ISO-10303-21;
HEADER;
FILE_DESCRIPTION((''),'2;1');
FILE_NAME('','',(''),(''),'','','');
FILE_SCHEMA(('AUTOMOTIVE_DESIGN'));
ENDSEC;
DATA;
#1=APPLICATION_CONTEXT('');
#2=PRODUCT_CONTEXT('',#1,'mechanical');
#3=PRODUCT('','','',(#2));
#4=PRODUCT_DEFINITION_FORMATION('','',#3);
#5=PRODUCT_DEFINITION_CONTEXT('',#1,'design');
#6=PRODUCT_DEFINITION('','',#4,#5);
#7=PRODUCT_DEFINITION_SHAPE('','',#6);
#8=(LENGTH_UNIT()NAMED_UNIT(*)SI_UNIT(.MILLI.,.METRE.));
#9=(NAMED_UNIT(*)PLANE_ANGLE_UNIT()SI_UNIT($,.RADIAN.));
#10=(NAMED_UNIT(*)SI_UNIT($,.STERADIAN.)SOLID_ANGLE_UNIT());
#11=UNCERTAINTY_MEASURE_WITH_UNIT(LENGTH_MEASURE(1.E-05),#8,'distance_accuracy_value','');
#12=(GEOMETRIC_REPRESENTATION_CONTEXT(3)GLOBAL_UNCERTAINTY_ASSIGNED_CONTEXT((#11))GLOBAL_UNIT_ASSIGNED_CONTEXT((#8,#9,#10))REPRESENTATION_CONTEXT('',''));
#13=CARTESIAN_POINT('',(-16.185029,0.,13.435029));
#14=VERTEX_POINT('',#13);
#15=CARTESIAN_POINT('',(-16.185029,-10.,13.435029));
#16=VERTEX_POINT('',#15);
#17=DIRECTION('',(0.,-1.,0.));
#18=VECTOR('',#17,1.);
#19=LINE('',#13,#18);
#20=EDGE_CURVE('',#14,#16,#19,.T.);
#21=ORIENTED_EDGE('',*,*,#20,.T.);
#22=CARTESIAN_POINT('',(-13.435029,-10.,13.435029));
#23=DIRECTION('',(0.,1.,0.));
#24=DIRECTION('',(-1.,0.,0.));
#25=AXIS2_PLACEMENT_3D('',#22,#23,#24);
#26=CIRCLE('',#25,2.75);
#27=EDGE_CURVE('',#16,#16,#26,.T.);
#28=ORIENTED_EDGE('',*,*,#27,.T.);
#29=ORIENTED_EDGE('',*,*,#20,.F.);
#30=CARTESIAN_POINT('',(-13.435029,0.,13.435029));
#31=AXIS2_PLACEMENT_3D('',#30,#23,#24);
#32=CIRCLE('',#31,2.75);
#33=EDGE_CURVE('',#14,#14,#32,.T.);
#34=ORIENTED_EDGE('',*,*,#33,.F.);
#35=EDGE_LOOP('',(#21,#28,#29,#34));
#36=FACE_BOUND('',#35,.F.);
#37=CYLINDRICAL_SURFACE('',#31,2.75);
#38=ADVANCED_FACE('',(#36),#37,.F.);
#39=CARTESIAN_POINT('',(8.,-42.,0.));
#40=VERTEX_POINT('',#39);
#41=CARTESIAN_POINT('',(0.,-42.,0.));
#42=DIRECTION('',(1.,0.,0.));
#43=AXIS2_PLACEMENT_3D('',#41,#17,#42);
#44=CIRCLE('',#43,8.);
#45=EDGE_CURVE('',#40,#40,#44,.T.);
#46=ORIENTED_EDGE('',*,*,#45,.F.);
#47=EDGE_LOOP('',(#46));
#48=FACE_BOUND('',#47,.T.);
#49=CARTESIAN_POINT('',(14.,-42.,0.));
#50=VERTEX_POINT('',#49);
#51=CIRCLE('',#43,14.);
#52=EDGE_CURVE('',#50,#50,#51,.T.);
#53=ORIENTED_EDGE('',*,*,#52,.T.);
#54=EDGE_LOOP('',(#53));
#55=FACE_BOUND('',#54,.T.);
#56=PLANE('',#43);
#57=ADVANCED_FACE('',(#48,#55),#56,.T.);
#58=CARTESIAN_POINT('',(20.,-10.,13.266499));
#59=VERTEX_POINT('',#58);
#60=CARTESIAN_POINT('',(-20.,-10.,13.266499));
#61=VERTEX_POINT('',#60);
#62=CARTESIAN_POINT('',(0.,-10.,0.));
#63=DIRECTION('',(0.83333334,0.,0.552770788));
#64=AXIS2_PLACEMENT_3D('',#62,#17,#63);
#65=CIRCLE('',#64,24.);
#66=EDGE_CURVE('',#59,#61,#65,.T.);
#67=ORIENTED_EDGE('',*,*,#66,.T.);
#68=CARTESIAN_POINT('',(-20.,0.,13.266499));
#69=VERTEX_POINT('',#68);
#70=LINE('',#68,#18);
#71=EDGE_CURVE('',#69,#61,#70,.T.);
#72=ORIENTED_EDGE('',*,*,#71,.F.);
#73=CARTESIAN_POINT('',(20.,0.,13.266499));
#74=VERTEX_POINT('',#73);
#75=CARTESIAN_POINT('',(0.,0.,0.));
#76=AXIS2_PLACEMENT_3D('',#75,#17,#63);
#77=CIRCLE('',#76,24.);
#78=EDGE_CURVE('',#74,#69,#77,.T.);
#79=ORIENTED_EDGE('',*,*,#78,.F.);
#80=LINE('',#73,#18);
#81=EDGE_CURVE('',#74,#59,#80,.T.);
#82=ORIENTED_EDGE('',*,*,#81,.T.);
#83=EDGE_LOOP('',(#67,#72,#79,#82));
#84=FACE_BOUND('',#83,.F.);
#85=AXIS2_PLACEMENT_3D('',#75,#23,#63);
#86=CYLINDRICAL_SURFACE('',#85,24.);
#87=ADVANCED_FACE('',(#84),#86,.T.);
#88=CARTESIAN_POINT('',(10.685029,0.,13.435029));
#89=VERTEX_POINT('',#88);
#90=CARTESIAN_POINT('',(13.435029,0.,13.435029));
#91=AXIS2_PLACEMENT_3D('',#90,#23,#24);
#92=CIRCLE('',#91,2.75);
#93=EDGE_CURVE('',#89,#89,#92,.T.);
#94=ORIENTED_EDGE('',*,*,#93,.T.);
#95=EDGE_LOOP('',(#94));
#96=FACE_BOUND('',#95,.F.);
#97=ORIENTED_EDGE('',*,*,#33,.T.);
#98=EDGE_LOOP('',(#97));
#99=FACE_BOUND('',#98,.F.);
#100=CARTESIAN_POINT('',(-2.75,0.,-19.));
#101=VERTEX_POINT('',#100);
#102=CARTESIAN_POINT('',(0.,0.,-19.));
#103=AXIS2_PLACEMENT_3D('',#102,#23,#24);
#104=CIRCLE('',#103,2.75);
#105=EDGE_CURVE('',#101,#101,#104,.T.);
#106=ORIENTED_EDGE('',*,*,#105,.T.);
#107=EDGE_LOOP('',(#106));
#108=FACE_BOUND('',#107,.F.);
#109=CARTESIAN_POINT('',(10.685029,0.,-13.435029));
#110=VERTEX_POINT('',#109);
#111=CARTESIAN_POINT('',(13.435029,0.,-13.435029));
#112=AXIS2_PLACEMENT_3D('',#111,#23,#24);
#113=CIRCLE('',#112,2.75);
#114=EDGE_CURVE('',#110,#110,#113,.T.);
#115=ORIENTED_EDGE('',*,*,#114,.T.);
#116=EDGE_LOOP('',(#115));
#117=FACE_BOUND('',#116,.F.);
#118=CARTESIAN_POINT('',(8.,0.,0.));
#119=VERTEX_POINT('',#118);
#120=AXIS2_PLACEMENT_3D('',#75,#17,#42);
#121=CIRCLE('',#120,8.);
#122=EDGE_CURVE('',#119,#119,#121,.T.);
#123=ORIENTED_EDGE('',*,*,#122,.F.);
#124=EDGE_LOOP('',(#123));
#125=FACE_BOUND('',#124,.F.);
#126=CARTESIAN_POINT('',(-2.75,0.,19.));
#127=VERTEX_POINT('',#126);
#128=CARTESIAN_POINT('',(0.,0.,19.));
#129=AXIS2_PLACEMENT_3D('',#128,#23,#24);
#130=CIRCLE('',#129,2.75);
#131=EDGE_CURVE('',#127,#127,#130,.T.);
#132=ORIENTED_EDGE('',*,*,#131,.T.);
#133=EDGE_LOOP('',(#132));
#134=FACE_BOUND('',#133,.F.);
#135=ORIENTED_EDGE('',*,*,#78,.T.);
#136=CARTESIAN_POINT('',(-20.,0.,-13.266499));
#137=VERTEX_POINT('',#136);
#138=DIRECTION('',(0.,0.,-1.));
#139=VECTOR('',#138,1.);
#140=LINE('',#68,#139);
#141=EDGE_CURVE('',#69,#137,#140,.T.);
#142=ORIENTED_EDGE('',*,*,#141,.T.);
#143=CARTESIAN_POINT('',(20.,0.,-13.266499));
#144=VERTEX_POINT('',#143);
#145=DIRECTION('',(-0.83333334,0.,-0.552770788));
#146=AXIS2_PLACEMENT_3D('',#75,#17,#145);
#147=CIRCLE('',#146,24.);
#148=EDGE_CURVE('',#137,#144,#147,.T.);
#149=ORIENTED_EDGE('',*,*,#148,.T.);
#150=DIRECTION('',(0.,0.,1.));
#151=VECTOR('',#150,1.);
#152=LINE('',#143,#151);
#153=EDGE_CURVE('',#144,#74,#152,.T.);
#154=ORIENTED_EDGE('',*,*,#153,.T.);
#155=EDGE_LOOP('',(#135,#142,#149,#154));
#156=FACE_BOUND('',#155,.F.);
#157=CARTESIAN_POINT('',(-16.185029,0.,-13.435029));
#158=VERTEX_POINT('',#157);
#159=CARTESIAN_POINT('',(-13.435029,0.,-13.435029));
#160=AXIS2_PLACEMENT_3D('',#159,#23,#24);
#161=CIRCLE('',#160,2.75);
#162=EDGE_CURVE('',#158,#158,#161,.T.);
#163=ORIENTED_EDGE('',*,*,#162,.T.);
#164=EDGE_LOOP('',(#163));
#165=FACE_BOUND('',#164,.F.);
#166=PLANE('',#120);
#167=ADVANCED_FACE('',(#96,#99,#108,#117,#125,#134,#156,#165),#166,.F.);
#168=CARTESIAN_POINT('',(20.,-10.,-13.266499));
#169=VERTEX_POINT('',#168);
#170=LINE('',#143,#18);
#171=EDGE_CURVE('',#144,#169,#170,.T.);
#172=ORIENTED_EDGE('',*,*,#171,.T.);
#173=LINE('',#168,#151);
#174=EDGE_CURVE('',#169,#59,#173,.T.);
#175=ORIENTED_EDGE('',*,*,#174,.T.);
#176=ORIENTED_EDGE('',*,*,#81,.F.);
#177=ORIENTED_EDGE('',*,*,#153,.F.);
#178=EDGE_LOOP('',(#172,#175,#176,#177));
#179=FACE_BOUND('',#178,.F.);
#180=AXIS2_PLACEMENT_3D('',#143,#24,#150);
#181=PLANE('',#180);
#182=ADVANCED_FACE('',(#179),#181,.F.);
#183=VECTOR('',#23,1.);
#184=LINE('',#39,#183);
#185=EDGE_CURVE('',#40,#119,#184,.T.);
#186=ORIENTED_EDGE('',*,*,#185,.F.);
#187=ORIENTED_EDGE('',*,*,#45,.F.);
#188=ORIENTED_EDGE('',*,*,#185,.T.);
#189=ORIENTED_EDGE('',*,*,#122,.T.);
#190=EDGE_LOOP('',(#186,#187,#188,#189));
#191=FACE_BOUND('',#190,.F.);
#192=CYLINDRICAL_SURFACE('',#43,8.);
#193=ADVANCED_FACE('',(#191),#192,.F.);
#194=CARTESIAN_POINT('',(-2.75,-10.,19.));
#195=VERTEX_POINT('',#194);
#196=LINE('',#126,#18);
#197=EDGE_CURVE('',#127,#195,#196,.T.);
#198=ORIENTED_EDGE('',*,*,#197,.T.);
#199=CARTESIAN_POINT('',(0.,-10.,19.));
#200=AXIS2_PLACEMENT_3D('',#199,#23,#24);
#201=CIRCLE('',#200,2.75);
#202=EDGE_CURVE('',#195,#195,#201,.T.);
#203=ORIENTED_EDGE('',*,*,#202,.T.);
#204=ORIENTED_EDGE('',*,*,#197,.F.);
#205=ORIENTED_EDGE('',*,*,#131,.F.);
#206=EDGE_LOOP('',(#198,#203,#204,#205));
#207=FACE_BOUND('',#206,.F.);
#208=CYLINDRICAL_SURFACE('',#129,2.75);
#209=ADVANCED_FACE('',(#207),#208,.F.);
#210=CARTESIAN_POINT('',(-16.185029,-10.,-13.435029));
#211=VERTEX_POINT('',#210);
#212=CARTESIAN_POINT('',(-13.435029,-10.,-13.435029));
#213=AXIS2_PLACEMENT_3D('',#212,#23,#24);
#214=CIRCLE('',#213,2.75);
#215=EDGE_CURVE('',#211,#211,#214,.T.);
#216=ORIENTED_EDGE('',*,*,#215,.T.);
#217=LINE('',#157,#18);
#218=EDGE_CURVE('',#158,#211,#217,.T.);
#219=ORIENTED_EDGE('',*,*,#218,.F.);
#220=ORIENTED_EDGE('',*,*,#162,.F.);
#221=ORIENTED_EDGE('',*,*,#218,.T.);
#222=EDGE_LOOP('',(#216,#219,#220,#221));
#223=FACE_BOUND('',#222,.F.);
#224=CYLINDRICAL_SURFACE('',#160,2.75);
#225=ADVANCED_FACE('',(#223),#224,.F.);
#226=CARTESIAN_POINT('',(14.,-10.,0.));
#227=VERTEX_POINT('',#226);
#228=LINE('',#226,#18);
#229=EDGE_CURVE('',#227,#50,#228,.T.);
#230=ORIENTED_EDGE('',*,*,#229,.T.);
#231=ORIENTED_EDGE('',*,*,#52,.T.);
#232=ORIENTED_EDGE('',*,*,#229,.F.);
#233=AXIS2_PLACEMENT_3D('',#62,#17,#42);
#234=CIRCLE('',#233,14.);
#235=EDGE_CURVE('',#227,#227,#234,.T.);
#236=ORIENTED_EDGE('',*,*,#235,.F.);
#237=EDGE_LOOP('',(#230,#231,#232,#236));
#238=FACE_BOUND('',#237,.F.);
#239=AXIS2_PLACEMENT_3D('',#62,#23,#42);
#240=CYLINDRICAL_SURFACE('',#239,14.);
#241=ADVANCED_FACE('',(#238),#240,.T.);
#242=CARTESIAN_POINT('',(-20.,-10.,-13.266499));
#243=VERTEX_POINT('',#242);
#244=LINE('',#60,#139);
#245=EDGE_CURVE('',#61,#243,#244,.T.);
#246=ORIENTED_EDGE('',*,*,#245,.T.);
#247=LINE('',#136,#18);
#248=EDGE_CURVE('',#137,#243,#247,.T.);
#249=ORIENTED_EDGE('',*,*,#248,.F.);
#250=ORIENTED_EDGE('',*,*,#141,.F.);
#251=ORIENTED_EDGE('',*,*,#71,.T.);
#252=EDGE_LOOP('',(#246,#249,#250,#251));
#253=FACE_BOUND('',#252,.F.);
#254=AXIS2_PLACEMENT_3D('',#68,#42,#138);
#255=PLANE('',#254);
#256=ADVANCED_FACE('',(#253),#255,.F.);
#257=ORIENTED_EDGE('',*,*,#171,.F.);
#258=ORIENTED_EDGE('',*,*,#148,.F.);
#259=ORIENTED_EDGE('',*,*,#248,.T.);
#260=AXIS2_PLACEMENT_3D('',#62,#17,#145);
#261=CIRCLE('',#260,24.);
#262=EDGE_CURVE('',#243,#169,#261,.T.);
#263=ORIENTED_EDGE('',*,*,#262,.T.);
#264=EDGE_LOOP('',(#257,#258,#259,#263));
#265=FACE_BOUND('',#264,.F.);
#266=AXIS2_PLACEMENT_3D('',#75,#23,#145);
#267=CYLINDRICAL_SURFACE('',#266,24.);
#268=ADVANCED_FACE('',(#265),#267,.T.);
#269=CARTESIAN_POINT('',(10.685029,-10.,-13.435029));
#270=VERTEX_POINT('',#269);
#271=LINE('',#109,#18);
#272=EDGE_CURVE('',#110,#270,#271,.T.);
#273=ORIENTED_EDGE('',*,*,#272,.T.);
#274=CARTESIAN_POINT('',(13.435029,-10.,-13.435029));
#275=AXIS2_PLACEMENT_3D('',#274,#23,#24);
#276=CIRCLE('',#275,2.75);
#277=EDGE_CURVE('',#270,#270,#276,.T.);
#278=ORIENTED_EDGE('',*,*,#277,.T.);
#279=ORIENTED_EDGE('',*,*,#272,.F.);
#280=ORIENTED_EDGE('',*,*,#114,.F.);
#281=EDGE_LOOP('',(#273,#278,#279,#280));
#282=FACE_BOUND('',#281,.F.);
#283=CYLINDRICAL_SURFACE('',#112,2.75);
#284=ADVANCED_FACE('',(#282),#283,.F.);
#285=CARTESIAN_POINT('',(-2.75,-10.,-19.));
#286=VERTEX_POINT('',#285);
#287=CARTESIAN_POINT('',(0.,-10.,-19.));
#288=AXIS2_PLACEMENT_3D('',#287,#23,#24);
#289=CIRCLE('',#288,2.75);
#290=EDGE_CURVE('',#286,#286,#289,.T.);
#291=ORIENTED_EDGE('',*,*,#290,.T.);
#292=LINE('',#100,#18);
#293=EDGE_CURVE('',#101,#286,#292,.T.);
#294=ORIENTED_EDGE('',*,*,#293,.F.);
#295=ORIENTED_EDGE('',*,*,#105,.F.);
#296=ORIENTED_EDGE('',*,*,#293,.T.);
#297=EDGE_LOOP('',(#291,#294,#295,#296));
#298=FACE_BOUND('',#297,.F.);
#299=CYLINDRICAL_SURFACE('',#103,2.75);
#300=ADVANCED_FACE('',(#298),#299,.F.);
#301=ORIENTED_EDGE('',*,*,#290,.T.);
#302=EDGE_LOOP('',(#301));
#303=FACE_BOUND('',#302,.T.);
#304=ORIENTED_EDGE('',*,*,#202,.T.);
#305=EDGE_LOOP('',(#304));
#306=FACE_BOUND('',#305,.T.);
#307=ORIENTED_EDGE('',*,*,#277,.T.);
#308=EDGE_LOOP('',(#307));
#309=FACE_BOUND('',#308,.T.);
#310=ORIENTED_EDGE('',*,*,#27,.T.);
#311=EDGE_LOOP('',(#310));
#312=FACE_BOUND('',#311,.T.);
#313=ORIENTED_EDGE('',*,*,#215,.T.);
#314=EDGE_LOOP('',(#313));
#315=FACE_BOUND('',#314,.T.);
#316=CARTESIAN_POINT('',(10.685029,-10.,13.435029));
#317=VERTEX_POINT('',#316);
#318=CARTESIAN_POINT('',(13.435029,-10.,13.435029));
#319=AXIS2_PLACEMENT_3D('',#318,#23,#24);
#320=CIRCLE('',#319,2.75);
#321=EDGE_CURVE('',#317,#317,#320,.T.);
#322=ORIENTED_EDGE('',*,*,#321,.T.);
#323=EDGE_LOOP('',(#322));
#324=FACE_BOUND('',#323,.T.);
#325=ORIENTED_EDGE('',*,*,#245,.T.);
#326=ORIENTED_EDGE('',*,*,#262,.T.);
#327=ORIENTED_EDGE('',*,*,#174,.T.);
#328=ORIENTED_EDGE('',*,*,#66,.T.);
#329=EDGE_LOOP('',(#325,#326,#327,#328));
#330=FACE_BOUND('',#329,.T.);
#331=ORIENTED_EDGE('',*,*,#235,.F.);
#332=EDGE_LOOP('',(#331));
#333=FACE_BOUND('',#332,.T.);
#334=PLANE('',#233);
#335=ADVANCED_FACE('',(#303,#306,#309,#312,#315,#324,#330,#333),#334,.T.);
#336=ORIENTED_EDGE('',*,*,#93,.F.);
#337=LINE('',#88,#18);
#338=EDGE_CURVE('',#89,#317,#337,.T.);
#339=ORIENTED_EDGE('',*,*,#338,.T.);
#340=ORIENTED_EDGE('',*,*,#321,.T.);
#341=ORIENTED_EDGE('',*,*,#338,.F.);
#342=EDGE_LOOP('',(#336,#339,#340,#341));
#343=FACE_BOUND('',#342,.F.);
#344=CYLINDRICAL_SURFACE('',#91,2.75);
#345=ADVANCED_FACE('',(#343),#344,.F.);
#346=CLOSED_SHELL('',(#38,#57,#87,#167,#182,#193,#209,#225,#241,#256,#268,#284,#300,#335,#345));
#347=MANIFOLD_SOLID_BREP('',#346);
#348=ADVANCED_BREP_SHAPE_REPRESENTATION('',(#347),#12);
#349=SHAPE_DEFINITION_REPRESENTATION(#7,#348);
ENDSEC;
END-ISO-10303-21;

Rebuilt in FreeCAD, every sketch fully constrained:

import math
import FreeCAD as App
import Part
import Sketcher

doc = App.newDocument("Part")
body = doc.addObject("PartDesign::Body", "Body")

sketch1 = body.newObject("Sketcher::SketchObject", "Sketch")
sketch1.AttachmentSupport = (doc.getObject("XZ_Plane"), [""])
sketch1.MapMode = "FlatFace"
sketch1.addGeometry([
    Part.LineSegment(App.Vector(-20, 13, 0), App.Vector(-20, -13, 0)),
    Part.ArcOfCircle(Part.Circle(App.Vector(0, 0, 0), App.Vector(0, 0, 1), 24), math.radians(-146), math.radians(-34)),
    Part.LineSegment(App.Vector(20, -13, 0), App.Vector(20, 13, 0)),
    Part.ArcOfCircle(Part.Circle(App.Vector(0, 0, 0), App.Vector(0, 0, 1), 24), math.radians(34), math.radians(146)),
], False)
sketch1.addConstraint([
    Sketcher.Constraint("Coincident", 0, 2, 1, 1),
    Sketcher.Constraint("Coincident", 1, 2, 2, 1),
    Sketcher.Constraint("Coincident", 2, 2, 3, 1),
    Sketcher.Constraint("Coincident", 3, 2, 0, 1),
    Sketcher.Constraint("Vertical", 0),
    Sketcher.Constraint("Vertical", 2),
    Sketcher.Constraint("Coincident", 1, 3, -1, 1),
    Sketcher.Constraint("Coincident", 3, 3, -1, 1),
    Sketcher.Constraint("Equal", 1, 3),
    Sketcher.Constraint("Horizontal", 0, 2, 1, 2),
    Sketcher.Constraint("Radius", 1, 24.0),
    Sketcher.Constraint("DistanceX", 0, 2, -1, 1, 20.0),
])
pad1 = body.newObject("PartDesign::Pad", "Pad")
pad1.Profile = sketch1
pad1.Length = 10

sketch2 = body.newObject("Sketcher::SketchObject", "Sketch001")
sketch2.AttachmentSupport = (doc.getObject("XZ_Plane"), [""])
sketch2.MapMode = "FlatFace"
sketch2.AttachmentOffset = App.Placement(App.Vector(0, 0, 10), App.Rotation())
sketch2.addGeometry(Part.Circle(App.Vector(0, 0, 0), App.Vector(0, 0, 1), 14), False)
sketch2.addConstraint([
    Sketcher.Constraint("Coincident", 0, 3, -1, 1),
    Sketcher.Constraint("Diameter", 0, 28.0),
])
pad2 = body.newObject("PartDesign::Pad", "Pad001")
pad2.Profile = sketch2
pad2.Length = 32

sketch3 = body.newObject("Sketcher::SketchObject", "Sketch002")
sketch3.AttachmentSupport = (doc.getObject("XZ_Plane"), [""])
sketch3.MapMode = "FlatFace"
sketch3.AttachmentOffset = App.Placement(App.Vector(0, 0, 42), App.Rotation())
sketch3.addGeometry(Part.Circle(App.Vector(0, 0, 0), App.Vector(0, 0, 1), 8), False)
sketch3.addConstraint([
    Sketcher.Constraint("Coincident", 0, 3, -1, 1),
    Sketcher.Constraint("Diameter", 0, 16.0),
])
pocket1 = body.newObject("PartDesign::Pocket", "Pocket")
pocket1.Profile = sketch3
pocket1.Type = "ThroughAll"

sketch4 = body.newObject("Sketcher::SketchObject", "Sketch003")
sketch4.AttachmentSupport = (doc.getObject("XZ_Plane"), [""])
sketch4.MapMode = "FlatFace"
sketch4.addGeometry([
    Part.Circle(App.Vector(0, 19, 0), App.Vector(0, 0, 1), 2.8),
    Part.Circle(App.Vector(13.4, 13.4, 0), App.Vector(0, 0, 1), 2.8),
    Part.Circle(App.Vector(13.4, -13.4, 0), App.Vector(0, 0, 1), 2.8),
    Part.Circle(App.Vector(0, -19, 0), App.Vector(0, 0, 1), 2.8),
    Part.Circle(App.Vector(-13.4, -13.4, 0), App.Vector(0, 0, 1), 2.8),
    Part.Circle(App.Vector(-13.4, 13.4, 0), App.Vector(0, 0, 1), 2.8),
], False)
sketch4.addConstraint([
    Sketcher.Constraint("Equal", 0, 1),
    Sketcher.Constraint("Equal", 1, 2),
    Sketcher.Constraint("Equal", 2, 3),
    Sketcher.Constraint("Equal", 3, 4),
    Sketcher.Constraint("Equal", 4, 5),
    Sketcher.Constraint("Symmetric", 0, 3, 3, 3, -1, 1),
    Sketcher.Constraint("Symmetric", 1, 3, 4, 3, -1, 1),
    Sketcher.Constraint("Symmetric", 2, 3, 5, 3, -1, 1),
    Sketcher.Constraint("Symmetric", 2, 3, 4, 3, -2),
    Sketcher.Constraint("PointOnObject", 0, 3, -2),
    Sketcher.Constraint("Diameter", 0, 5.5),
    Sketcher.Constraint("DistanceY", -1, 1, 0, 3, 19.0),
    Sketcher.Constraint("DistanceX", -1, 1, 1, 3, 13.435029),
    Sketcher.Constraint("DistanceY", -1, 1, 1, 3, 13.435029),
])
pocket2 = body.newObject("PartDesign::Pocket", "Pocket001")
pocket2.Profile = sketch4
pocket2.Type = "ThroughAll"
pocket2.Reversed = True

doc.recompute()
